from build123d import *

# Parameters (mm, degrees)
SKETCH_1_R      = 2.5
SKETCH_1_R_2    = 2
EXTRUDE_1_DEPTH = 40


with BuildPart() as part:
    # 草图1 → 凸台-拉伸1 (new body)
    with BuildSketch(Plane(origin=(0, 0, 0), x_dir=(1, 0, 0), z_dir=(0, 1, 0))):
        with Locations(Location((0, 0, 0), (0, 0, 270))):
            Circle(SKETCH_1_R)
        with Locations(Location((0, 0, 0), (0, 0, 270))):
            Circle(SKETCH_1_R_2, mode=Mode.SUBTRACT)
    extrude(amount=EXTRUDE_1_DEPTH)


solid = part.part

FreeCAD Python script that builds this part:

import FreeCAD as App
import Part
import Sketcher
from FreeCAD import Vector
Q = App.Units.Quantity

doc = App.newDocument("Part")
body = doc.addObject("PartDesign::Body", "Body")

# Sketch on XZ plane
sketch1 = body.newObject("Sketcher::SketchObject", "Sketch")
sketch1.AttachmentSupport = (doc.getObject("XZ_Plane"), [""])
sketch1.MapMode = "FlatFace"
sketch1.addGeometry([
    Part.Circle(Vector(0, 0, 0), Vector(0, 0, 1), 2.5),
    Part.Circle(Vector(0, 0, 0), Vector(0, 0, 1), 2),
], False)
sketch1.addConstraint([
    Sketcher.Constraint("Coincident", 0, 3, -1, 1),
    Sketcher.Constraint("Coincident", 1, 3, -1, 1),
    Sketcher.Constraint("Diameter", 0, Q("5 mm")),
    Sketcher.Constraint("Diameter", 1, Q("4 mm")),
])
pad1 = body.newObject("PartDesign::Pad", "Pad")
pad1.Profile = sketch1
pad1.Length = 40
pad1.Reversed = True

doc.recompute()
